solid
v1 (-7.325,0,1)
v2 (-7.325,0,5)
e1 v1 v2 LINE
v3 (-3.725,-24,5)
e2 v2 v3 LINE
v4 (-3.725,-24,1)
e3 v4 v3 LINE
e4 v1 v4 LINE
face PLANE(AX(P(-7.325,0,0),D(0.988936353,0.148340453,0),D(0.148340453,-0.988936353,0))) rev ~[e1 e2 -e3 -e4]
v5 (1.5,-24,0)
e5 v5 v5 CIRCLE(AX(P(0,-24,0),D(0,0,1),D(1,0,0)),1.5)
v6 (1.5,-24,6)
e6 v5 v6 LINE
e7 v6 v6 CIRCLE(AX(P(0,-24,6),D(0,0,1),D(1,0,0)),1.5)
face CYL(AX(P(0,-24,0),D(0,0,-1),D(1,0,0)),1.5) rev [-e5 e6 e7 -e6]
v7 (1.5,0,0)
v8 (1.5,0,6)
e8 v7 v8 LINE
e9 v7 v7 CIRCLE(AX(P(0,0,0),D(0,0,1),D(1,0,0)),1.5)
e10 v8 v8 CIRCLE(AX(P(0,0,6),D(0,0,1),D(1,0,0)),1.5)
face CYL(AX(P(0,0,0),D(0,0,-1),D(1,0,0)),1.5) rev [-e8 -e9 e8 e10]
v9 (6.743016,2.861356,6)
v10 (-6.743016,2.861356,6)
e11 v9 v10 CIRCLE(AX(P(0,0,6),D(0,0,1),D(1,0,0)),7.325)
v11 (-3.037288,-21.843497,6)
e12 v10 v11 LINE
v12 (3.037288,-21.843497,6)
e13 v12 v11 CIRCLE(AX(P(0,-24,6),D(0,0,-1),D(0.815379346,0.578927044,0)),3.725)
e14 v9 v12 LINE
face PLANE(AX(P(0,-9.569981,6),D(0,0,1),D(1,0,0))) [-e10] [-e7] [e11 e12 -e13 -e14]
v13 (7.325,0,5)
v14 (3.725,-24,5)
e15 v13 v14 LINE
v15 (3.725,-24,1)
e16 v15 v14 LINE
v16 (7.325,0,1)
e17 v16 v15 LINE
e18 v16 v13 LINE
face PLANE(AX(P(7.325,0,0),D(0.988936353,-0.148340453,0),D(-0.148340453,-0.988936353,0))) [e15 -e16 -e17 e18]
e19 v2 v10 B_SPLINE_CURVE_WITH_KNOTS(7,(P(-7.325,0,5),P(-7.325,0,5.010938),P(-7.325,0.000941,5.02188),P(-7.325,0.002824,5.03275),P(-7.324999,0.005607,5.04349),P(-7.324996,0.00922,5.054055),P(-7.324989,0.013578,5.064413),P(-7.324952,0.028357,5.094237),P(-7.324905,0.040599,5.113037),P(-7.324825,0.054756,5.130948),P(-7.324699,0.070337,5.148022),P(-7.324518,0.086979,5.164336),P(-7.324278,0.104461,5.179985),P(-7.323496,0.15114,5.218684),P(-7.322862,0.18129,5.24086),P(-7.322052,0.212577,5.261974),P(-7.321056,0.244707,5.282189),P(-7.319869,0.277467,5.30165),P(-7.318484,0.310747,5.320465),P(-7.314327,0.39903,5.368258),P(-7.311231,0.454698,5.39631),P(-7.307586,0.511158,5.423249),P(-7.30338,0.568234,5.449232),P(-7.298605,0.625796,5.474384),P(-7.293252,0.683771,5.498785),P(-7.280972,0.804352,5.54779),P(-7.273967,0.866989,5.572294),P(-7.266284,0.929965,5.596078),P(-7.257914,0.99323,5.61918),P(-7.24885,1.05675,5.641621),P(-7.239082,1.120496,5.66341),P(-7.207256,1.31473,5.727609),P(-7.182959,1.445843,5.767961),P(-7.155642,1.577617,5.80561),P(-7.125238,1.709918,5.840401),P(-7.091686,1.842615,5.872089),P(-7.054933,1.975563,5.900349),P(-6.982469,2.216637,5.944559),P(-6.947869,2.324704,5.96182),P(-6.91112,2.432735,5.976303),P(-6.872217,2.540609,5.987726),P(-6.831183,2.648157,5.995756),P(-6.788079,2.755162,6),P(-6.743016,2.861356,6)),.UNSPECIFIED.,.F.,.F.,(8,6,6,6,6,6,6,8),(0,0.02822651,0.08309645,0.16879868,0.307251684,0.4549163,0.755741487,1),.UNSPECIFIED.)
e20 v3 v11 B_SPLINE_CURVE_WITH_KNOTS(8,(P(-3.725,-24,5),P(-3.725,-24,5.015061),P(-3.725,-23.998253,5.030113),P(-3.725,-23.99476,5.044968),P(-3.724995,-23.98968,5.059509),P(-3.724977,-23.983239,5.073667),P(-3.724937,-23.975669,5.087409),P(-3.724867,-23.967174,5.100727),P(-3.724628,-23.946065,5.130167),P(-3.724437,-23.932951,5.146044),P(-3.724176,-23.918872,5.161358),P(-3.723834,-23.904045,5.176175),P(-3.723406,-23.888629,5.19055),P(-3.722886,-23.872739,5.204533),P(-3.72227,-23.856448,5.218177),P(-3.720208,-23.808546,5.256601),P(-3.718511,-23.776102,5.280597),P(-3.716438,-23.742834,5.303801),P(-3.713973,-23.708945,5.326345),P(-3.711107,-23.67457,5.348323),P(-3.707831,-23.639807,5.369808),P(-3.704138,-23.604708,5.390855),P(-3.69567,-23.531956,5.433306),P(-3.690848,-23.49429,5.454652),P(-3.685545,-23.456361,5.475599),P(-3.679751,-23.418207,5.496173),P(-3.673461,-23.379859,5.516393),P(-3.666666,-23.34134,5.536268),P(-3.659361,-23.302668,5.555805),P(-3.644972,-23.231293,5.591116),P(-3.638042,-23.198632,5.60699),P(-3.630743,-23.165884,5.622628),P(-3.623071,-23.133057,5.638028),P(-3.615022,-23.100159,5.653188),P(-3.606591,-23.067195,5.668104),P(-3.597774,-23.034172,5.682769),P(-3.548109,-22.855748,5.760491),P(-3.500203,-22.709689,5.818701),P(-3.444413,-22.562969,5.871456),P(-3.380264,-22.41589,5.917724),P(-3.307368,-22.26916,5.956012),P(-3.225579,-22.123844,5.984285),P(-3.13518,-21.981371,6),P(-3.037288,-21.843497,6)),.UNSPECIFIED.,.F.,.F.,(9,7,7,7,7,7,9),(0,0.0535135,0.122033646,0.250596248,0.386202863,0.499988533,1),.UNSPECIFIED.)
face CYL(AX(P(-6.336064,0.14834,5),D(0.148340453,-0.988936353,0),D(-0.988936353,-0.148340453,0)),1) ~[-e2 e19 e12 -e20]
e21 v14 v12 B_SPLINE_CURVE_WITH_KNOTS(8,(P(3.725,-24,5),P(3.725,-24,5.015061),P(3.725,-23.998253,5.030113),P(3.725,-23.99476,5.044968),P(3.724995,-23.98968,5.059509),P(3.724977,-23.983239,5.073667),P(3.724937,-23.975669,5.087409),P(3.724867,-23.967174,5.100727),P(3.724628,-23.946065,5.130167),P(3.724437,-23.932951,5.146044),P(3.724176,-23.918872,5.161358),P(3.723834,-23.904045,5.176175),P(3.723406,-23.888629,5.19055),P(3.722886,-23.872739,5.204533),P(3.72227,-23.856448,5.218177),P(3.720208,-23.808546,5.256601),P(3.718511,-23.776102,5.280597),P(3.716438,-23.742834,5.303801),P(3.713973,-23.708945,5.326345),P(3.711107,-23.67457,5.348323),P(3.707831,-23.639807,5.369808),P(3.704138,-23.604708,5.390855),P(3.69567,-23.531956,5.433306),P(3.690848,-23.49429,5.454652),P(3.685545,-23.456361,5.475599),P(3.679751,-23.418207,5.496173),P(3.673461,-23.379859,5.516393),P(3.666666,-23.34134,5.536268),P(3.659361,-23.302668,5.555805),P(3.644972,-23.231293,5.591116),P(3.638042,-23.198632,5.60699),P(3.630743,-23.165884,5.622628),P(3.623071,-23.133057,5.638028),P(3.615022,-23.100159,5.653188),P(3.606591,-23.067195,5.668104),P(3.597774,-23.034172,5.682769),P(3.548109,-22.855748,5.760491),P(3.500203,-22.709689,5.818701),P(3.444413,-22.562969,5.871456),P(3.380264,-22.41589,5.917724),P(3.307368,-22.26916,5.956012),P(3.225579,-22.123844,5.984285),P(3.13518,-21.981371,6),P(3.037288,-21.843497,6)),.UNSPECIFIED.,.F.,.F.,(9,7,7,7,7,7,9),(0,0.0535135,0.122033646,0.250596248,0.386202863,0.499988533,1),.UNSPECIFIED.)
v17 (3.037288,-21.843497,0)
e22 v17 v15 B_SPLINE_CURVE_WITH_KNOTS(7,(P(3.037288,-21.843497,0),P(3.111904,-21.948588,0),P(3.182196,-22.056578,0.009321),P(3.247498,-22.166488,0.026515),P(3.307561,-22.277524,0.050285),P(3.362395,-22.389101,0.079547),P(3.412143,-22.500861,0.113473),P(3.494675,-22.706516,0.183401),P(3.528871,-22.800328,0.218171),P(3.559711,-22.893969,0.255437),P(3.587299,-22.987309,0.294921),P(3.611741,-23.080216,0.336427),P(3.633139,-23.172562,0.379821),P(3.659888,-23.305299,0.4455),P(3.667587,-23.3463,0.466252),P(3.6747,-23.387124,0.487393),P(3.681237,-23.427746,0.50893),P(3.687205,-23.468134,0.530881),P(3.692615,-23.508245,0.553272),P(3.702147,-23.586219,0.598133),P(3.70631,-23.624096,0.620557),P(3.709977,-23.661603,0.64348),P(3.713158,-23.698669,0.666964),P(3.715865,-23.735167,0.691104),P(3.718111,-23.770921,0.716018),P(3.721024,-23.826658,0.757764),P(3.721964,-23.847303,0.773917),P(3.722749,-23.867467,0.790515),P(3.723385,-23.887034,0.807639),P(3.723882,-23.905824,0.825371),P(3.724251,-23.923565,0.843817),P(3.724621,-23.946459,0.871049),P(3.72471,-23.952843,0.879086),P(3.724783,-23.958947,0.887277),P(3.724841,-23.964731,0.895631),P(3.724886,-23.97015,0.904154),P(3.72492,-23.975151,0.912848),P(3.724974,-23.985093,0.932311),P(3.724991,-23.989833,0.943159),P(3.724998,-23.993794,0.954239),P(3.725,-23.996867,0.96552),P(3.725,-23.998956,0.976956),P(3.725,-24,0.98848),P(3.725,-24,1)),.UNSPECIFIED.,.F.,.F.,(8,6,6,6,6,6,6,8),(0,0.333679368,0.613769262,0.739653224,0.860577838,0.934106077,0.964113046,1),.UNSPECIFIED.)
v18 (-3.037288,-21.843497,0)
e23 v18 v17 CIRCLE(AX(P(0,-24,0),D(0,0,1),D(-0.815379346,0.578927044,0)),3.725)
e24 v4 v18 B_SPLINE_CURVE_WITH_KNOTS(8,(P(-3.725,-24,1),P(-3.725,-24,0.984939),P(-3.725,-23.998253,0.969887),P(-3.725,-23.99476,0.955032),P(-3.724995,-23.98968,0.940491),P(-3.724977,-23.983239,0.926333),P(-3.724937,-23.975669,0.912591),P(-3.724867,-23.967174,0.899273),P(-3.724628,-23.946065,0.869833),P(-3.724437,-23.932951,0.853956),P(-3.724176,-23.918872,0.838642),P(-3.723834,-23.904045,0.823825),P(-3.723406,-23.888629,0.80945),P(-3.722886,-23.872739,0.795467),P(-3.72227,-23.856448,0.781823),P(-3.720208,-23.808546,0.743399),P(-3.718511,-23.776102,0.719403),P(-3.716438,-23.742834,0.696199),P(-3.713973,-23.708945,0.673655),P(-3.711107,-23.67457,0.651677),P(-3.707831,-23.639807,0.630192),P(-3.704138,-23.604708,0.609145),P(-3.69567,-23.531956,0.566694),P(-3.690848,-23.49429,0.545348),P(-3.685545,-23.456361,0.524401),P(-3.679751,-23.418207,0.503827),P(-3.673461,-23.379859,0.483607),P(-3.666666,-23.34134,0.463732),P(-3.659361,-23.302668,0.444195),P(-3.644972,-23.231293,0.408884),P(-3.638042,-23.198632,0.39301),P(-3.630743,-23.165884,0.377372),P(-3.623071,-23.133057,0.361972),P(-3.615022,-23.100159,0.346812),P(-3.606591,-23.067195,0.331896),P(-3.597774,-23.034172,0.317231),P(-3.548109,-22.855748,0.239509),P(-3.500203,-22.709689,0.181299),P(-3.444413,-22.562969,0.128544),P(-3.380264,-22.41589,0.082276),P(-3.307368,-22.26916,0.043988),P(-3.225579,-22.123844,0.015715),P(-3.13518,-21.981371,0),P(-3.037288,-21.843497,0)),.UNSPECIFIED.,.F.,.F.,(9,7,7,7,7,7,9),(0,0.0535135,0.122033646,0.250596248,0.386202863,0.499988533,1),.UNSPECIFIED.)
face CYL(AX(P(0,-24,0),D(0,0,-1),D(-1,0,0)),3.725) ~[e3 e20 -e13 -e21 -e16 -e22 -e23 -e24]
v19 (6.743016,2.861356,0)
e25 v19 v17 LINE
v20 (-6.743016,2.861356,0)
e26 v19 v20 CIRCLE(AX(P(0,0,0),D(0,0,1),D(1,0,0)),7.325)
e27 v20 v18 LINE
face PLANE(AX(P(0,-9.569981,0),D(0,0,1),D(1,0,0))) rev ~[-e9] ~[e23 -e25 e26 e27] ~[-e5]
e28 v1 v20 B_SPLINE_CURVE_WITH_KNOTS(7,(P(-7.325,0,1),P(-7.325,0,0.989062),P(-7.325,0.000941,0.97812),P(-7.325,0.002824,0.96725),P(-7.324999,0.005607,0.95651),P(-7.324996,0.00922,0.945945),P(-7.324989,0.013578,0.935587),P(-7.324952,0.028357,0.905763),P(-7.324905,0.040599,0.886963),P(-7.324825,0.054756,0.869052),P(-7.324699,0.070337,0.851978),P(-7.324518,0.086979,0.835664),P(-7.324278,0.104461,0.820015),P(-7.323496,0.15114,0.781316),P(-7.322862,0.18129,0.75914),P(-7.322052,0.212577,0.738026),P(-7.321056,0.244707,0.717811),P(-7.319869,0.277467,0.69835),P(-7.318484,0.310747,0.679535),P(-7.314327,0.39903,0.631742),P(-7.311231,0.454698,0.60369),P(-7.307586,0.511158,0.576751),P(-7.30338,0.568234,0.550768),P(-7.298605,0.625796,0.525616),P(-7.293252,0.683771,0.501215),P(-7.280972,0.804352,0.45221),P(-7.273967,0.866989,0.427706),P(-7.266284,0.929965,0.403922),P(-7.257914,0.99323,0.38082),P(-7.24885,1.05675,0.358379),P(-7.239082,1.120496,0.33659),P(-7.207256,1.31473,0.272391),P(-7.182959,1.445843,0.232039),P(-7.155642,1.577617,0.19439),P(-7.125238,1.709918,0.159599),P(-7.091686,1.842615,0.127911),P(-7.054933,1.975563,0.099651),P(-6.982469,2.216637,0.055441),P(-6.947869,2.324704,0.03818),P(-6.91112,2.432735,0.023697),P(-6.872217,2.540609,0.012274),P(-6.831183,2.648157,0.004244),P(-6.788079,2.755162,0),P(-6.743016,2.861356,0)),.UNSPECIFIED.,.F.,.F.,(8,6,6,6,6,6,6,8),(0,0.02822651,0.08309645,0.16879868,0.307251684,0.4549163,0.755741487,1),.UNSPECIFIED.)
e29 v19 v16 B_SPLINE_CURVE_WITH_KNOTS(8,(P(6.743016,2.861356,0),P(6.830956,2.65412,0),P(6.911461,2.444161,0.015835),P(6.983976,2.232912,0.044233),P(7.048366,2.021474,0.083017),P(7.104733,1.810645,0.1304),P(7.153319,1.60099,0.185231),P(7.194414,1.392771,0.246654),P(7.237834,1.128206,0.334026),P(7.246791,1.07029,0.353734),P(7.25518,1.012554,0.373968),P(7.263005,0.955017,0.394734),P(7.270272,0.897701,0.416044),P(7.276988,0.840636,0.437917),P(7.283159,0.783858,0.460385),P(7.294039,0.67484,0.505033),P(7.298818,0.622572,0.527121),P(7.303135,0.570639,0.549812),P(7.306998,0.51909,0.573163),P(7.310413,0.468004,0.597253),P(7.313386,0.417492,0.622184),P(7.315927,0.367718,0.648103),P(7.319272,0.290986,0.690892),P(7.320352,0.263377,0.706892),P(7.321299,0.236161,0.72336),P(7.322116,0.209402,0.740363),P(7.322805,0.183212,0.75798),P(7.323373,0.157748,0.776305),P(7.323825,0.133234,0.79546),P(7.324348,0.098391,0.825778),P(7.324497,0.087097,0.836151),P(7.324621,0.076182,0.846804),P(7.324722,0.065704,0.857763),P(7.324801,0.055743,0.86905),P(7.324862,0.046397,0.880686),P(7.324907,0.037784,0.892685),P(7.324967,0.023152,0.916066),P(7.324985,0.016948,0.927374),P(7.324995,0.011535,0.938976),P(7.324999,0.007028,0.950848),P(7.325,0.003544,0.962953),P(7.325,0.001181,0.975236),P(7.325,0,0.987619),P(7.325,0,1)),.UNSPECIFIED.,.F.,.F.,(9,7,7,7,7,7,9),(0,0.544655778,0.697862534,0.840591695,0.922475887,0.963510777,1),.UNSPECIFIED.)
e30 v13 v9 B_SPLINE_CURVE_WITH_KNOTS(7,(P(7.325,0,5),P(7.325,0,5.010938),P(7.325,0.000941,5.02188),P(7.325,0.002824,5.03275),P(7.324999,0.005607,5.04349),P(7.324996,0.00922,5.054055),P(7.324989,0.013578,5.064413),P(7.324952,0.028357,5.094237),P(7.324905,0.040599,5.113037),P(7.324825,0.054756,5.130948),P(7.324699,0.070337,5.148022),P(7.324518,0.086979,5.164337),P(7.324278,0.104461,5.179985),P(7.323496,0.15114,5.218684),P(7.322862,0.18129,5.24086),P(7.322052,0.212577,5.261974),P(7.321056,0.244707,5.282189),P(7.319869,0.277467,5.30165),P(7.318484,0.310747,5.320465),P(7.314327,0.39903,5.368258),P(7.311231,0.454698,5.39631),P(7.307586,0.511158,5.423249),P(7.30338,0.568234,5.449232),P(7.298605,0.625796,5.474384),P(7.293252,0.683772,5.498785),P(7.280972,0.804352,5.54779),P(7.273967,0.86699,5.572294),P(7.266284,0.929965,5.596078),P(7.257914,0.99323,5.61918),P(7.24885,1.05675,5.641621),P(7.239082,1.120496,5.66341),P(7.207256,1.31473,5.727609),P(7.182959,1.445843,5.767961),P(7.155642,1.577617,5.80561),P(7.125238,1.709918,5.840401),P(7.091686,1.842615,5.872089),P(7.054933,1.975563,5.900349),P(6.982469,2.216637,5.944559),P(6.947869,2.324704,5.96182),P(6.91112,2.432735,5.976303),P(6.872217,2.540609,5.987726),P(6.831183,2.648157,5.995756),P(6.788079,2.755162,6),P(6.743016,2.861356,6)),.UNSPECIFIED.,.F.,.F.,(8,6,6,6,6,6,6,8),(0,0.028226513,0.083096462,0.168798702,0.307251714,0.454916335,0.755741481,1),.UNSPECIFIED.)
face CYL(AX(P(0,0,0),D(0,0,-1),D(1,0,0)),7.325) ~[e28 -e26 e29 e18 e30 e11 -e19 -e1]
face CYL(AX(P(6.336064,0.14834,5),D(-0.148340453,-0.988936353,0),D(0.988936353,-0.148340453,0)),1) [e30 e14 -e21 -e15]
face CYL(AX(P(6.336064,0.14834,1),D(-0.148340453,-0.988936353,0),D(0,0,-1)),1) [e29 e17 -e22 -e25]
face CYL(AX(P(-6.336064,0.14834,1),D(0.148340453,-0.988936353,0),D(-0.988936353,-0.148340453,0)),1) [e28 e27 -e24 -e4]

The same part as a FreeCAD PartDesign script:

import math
import FreeCAD as App
import Part
import Sketcher
from FreeCAD import Vector
Q = App.Units.Quantity


def edges_at(feature, points):
    """Names of the edges that pass closest to the given points."""
    edges = feature.Shape.Edges
    near = lambda p: min(range(len(edges)), key=lambda i: edges[i].distToShape(Part.Vertex(*p))[0])
    return sorted({f"Edge{near(p) + 1}" for p in points})

doc = App.newDocument("Part")
params = doc.addObject("Spreadsheet::Sheet", "Params")
for row, (alias, value) in enumerate([
    ("sketch1_diameter", "3 mm"),
    ("pad1_length", "6 mm"),
    ("fillet_radius", "1 mm"),
    ("fillet2_radius", "1 mm"),
    ("fillet3_radius", "1 mm"),
    ("fillet4_radius", "1 mm"),
], start=1):
    params.set(f"A{row}", alias)
    params.set(f"B{row}", "=" + value)
    params.setAlias(f"B{row}", alias)

body = doc.addObject("PartDesign::Body", "Body")

# Sketch on XY plane
sketch1 = doc.addObject("Sketcher::SketchObject", "Sketch")
body.addObject(sketch1)
sketch1.AttachmentSupport = (doc.XY_Plane, [""])
sketch1.MapMode = "FlatFace"
sketch1.addGeometry([
    Part.LineSegment(Vector(-7.3, 0, 0), Vector(-3.7, -24, 0)),  # 0
    Part.ArcOfCircle(Part.Circle(Vector(0, -24, 0), Vector(0, 0, 1), 3.7), math.radians(180), math.radians(360)),  # 1
    Part.LineSegment(Vector(3.7, -24, 0), Vector(7.3, 0, 0)),  # 2
    Part.ArcOfCircle(Part.Circle(Vector(0, 0, 0), Vector(0, 0, 1), 7.3), math.radians(0), math.radians(180)),  # 3
    Part.Circle(Vector(0, -24, 0), Vector(0, 0, 1), 1.5),  # 4
    Part.Circle(Vector(0, 0, 0), Vector(0, 0, 1), 1.5),  # 5
], False)
sketch1.addConstraint([
    Sketcher.Constraint("Coincident", 0, 2, 1, 1),
    Sketcher.Constraint("Coincident", 1, 2, 2, 1),
    Sketcher.Constraint("Coincident", 2, 2, 3, 1),
    Sketcher.Constraint("Coincident", 3, 2, 0, 1),
    Sketcher.Constraint("Coincident", 3, 3, -1, 1),
    Sketcher.Constraint("Coincident", 5, 3, -1, 1),
    Sketcher.Constraint("Coincident", 4, 3, 1, 3),
    Sketcher.Constraint("Equal", 4, 5),
    Sketcher.Constraint("Symmetric", 0, 2, 1, 2, -2),
    Sketcher.Constraint("PointOnObject", 2, 2, -1),
    Sketcher.Constraint("PointOnObject", 3, 2, -1),
    Sketcher.Constraint("Horizontal", 4, 3, 0, 2),
    Sketcher.Constraint("Diameter", 4, Q("3 mm")),
    Sketcher.Constraint("DistanceY", 1, 3, -1, 1, Q("24 mm")),
    Sketcher.Constraint("Radius", 1, Q("3.725 mm")),
    Sketcher.Constraint("Radius", 3, Q("7.325 mm")),
])
sketch1.setExpression("Constraints[12]", "Params.sketch1_diameter")
pad1 = doc.addObject("PartDesign::Pad", "Pad")
body.addObject(pad1)
pad1.Profile = sketch1
pad1.setExpression("Length", "Params.pad1_length")
doc.recompute()

fillet = doc.addObject("PartDesign::Fillet", "Fillet")
body.addObject(fillet)
fillet.Base = (pad1, edges_at(pad1, [(-5.525, -12, 6)]))
fillet.setExpression("Radius", "Params.fillet_radius")
doc.recompute()

fillet2 = doc.addObject("PartDesign::Fillet", "Fillet001")
body.addObject(fillet2)
fillet2.Base = (fillet, edges_at(fillet, [(5.525, -12, 6)]))
fillet2.setExpression("Radius", "Params.fillet2_radius")
doc.recompute()

fillet3 = doc.addObject("PartDesign::Fillet", "Fillet002")
body.addObject(fillet3)
fillet3.Base = (fillet2, edges_at(fillet2, [(-5.525, -12, 0)]))
fillet3.setExpression("Radius", "Params.fillet3_radius")
doc.recompute()

fillet4 = doc.addObject("PartDesign::Fillet", "Fillet003")
body.addObject(fillet4)
fillet4.Base = (fillet3, edges_at(fillet3, [(5.525, -12, 0)]))
fillet4.setExpression("Radius", "Params.fillet4_radius")

doc.recompute()
